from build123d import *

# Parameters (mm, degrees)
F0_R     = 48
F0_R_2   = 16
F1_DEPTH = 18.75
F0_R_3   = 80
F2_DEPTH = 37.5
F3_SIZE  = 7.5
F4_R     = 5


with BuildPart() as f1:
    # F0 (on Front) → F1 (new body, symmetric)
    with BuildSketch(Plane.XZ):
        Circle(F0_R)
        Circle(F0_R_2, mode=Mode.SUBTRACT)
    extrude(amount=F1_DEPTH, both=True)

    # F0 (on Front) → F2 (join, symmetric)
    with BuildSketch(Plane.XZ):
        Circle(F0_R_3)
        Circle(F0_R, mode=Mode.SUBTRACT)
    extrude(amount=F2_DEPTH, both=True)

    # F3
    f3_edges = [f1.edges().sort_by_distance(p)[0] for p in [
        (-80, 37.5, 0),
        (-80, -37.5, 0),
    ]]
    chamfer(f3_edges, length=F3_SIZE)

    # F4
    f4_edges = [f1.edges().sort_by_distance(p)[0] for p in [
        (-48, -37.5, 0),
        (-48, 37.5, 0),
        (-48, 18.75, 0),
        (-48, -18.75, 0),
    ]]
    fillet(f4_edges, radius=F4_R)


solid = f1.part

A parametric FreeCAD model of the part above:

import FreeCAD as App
import Part
import Sketcher
from FreeCAD import Vector


def edges_at(feature, points):
    """Names of the edges that pass closest to the given points."""
    edges = feature.Shape.Edges
    near = lambda p: min(range(len(edges)), key=lambda i: edges[i].distToShape(Part.Vertex(*p))[0])
    return sorted({f"Edge{near(p) + 1}" for p in points})

doc = App.newDocument("Part")
body = doc.addObject("PartDesign::Body", "Body")

sketch1 = doc.addObject("Sketcher::SketchObject", "Sketch")
body.addObject(sketch1)
sketch1.AttachmentSupport = (doc.XZ_Plane, [""])
sketch1.MapMode = "FlatFace"
sketch1.addGeometry(Part.Circle(Vector(0, 0, 0), Vector(0, 0, 1), 48), False)
sketch1.addGeometry(Part.Circle(Vector(0, 0, 0), Vector(0, 0, 1), 16), False)
sketch1.addConstraint(Sketcher.Constraint("Coincident", 0, 3, -1, 1))
sketch1.addConstraint(Sketcher.Constraint("Coincident", 1, 3, -1, 1))
sketch1.addConstraint(Sketcher.Constraint("Diameter", 0, 96.0))
sketch1.addConstraint(Sketcher.Constraint("Diameter", 1, 32.0))
pad1 = doc.addObject("PartDesign::Pad", "Pad")
body.addObject(pad1)
pad1.Profile = sketch1
pad1.Length = 37.5
pad1.Midplane = True

sketch2 = doc.addObject("Sketcher::SketchObject", "Sketch001")
body.addObject(sketch2)
sketch2.AttachmentSupport = (doc.XZ_Plane, [""])
sketch2.MapMode = "FlatFace"
sketch2.addGeometry(Part.Circle(Vector(0, 0, 0), Vector(0, 0, 1), 80), False)
sketch2.addGeometry(Part.Circle(Vector(0, 0, 0), Vector(0, 0, 1), 48), False)
sketch2.addConstraint(Sketcher.Constraint("Coincident", 0, 3, -1, 1))
sketch2.addConstraint(Sketcher.Constraint("Coincident", 1, 3, -1, 1))
sketch2.addConstraint(Sketcher.Constraint("Diameter", 0, 160.0))
sketch2.addConstraint(Sketcher.Constraint("Diameter", 1, 96.0))
pad2 = doc.addObject("PartDesign::Pad", "Pad001")
body.addObject(pad2)
pad2.Profile = sketch2
pad2.Length = 75
pad2.Midplane = True
doc.recompute()

chamfer = doc.addObject("PartDesign::Chamfer", "Chamfer")
body.addObject(chamfer)
chamfer.Base = (pad2, edges_at(pad2, [(-80, 37.5, 0), (-80, -37.5, 0)]))
chamfer.Size = 7.5
doc.recompute()

fillet = doc.addObject("PartDesign::Fillet", "Fillet")
body.addObject(fillet)
fillet.Base = (chamfer, edges_at(chamfer, [
    (-48, -37.5, 0),
    (-48, 37.5, 0),
    (-48, 18.75, 0),
    (-48, -18.75, 0),
]))
fillet.Radius = 5

doc.recompute()
